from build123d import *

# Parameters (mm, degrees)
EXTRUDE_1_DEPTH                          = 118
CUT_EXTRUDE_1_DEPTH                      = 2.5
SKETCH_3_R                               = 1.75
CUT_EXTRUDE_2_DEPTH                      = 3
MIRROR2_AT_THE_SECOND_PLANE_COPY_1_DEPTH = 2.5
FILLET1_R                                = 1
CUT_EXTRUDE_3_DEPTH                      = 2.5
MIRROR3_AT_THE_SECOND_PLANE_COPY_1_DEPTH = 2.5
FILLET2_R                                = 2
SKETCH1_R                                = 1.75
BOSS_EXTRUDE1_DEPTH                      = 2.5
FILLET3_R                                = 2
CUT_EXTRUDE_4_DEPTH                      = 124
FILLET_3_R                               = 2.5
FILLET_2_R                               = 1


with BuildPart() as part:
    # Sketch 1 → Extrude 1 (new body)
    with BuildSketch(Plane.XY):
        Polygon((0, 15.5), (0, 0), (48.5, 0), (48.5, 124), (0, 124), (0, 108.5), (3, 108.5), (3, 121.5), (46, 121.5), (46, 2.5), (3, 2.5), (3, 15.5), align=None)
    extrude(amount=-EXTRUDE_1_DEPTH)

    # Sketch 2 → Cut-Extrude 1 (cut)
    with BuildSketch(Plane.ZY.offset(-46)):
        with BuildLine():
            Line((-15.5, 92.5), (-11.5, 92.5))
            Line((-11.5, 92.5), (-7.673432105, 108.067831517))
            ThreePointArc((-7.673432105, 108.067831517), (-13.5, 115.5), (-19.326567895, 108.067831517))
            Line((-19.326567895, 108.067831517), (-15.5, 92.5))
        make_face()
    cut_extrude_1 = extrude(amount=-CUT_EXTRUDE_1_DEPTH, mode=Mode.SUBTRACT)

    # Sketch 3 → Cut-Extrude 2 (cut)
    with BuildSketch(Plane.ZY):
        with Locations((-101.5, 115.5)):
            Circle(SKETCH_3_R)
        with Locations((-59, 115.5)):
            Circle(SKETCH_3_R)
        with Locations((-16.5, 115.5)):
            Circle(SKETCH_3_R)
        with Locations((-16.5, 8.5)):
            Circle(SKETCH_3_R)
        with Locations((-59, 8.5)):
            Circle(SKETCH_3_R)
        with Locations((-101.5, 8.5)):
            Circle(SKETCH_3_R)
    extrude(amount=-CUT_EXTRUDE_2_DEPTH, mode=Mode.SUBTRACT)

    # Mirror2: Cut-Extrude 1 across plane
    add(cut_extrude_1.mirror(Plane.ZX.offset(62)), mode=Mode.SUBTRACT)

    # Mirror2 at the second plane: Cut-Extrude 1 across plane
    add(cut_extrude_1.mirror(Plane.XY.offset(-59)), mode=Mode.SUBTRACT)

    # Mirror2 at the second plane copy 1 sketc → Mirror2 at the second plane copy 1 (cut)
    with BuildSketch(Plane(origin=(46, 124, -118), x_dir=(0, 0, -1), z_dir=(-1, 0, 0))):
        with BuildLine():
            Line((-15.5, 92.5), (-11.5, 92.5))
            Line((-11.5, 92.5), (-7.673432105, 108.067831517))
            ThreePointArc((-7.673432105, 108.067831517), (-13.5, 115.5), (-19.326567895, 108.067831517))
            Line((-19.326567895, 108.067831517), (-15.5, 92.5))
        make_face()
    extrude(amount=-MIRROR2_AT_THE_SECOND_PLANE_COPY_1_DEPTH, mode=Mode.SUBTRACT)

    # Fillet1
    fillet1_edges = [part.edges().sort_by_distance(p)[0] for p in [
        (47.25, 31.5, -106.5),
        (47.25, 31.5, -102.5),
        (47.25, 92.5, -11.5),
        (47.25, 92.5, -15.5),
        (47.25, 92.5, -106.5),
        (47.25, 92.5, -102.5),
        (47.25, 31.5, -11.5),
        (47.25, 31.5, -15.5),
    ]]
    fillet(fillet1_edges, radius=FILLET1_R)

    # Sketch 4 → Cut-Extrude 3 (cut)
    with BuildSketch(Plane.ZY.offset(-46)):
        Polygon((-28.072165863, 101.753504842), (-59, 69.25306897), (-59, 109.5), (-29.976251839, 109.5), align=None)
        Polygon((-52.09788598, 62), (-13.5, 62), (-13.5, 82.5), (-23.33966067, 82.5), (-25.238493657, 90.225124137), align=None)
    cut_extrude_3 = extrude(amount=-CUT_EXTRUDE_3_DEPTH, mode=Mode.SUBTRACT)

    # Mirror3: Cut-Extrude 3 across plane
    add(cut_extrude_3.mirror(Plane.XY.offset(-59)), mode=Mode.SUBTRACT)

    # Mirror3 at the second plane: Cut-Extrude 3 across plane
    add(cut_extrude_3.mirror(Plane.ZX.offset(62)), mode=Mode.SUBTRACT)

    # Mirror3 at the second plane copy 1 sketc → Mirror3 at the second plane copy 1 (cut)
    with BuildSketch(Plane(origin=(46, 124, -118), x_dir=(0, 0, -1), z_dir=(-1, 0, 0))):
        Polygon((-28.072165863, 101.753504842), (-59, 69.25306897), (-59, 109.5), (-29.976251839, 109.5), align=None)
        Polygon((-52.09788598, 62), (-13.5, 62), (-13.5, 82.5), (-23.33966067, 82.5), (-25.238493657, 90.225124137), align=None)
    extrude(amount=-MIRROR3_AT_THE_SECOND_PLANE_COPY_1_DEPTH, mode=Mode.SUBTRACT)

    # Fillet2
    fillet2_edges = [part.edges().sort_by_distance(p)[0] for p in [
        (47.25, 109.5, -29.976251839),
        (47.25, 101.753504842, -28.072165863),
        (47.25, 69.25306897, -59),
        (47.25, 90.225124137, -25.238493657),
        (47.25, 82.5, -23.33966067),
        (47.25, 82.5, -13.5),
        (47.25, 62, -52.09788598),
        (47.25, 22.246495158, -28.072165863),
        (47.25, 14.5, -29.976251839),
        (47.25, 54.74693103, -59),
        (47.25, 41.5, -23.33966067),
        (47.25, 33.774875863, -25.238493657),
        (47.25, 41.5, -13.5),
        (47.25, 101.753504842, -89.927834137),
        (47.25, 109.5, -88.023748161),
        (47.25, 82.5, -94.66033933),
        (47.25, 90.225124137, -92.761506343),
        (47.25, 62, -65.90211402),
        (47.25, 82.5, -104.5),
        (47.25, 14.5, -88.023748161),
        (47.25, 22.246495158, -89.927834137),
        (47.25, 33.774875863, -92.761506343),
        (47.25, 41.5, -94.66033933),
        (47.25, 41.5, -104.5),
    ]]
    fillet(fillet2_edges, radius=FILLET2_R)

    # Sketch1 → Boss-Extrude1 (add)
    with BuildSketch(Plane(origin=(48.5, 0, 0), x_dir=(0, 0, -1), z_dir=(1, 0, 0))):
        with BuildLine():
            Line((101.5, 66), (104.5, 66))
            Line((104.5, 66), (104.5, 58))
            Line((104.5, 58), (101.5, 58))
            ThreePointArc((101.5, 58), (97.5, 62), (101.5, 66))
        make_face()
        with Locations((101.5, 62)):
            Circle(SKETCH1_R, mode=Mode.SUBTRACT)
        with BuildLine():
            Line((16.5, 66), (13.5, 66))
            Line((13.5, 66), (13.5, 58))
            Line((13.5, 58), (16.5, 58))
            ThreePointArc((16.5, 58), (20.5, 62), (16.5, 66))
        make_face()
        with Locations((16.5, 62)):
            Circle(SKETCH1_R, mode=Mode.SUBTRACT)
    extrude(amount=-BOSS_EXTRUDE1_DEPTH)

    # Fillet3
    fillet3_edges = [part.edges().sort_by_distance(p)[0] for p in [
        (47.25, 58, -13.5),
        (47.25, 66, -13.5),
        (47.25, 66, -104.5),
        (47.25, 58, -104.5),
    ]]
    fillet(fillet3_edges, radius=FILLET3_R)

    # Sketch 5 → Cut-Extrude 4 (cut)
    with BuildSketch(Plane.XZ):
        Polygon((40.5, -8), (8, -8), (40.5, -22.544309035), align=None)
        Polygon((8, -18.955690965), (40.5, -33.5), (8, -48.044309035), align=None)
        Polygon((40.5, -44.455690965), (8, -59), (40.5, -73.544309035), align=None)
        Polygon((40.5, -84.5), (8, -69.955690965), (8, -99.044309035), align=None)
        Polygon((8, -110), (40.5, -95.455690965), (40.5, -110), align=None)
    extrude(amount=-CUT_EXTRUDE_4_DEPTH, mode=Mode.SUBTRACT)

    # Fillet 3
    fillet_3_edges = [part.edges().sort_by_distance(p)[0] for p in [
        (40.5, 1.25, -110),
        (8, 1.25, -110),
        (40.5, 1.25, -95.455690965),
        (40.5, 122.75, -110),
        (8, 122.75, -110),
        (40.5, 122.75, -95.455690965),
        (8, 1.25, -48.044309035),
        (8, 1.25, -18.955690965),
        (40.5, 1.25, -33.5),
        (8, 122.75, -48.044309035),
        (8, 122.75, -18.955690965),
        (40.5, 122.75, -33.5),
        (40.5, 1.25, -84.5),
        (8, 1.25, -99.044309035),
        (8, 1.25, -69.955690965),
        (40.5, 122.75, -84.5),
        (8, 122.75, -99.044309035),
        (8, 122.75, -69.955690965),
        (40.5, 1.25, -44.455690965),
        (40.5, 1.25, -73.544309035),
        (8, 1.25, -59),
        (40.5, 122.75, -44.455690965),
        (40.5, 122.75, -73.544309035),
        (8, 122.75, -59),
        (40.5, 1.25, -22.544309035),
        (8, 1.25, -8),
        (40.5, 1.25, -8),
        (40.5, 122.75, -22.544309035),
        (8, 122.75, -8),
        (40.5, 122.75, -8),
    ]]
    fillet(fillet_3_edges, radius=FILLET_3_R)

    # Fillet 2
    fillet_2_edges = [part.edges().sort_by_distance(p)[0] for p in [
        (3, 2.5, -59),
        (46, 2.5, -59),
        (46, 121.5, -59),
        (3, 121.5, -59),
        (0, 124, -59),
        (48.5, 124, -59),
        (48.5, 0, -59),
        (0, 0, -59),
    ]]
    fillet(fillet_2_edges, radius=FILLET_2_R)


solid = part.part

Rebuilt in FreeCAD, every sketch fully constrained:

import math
import FreeCAD as App
import Part
import Sketcher

V = App.Vector


def edges_at(feature, points):
    """Names of the edges that pass closest to the given points."""
    edges = feature.Shape.Edges
    near = lambda p: min(range(len(edges)), key=lambda i: edges[i].distToShape(Part.Vertex(*p))[0])
    return sorted({f"Edge{near(p) + 1}" for p in points})

doc = App.newDocument("Part")
body = doc.addObject("PartDesign::Body", "Body")

# Sketch on XY plane
sketch1 = body.newObject("Sketcher::SketchObject", "Sketch")
sketch1.AttachmentSupport = (doc.getObject("XY_Plane"), [""])
sketch1.MapMode = "FlatFace"
sketch1.addGeometry(Part.LineSegment(V(0, 15.5, 0), V(0, 0, 0)), False)
sketch1.addGeometry(Part.LineSegment(V(0, 0, 0), V(48.5, 0, 0)), False)
sketch1.addGeometry(Part.LineSegment(V(48.5, 0, 0), V(48.5, 124, 0)), False)
sketch1.addGeometry(Part.LineSegment(V(48.5, 124, 0), V(0, 124, 0)), False)
sketch1.addGeometry(Part.LineSegment(V(0, 124, 0), V(0, 108.5, 0)), False)
sketch1.addGeometry(Part.LineSegment(V(0, 108.5, 0), V(3, 108.5, 0)), False)
sketch1.addGeometry(Part.LineSegment(V(3, 108.5, 0), V(3, 121.5, 0)), False)
sketch1.addGeometry(Part.LineSegment(V(3, 121.5, 0), V(46, 121.5, 0)), False)
sketch1.addGeometry(Part.LineSegment(V(46, 121.5, 0), V(46, 2.5, 0)), False)
sketch1.addGeometry(Part.LineSegment(V(46, 2.5, 0), V(3, 2.5, 0)), False)
sketch1.addGeometry(Part.LineSegment(V(3, 2.5, 0), V(3, 15.5, 0)), False)
sketch1.addGeometry(Part.LineSegment(V(3, 15.5, 0), V(0, 15.5, 0)), False)
sketch1.addConstraint(Sketcher.Constraint("Coincident", 0, 2, 1, 1))
sketch1.addConstraint(Sketcher.Constraint("Coincident", 1, 2, 2, 1))
sketch1.addConstraint(Sketcher.Constraint("Coincident", 2, 2, 3, 1))
sketch1.addConstraint(Sketcher.Constraint("Coincident", 3, 2, 4, 1))
sketch1.addConstraint(Sketcher.Constraint("Coincident", 4, 2, 5, 1))
sketch1.addConstraint(Sketcher.Constraint("Coincident", 5, 2, 6, 1))
sketch1.addConstraint(Sketcher.Constraint("Coincident", 6, 2, 7, 1))
sketch1.addConstraint(Sketcher.Constraint("Coincident", 7, 2, 8, 1))
sketch1.addConstraint(Sketcher.Constraint("Coincident", 8, 2, 9, 1))
sketch1.addConstraint(Sketcher.Constraint("Coincident", 9, 2, 10, 1))
sketch1.addConstraint(Sketcher.Constraint("Coincident", 10, 2, 11, 1))
sketch1.addConstraint(Sketcher.Constraint("Coincident", 11, 2, 0, 1))
sketch1.addConstraint(Sketcher.Constraint("Vertical", 0))
sketch1.addConstraint(Sketcher.Constraint("Horizontal", 1))
sketch1.addConstraint(Sketcher.Constraint("Vertical", 2))
sketch1.addConstraint(Sketcher.Constraint("Horizontal", 3))
sketch1.addConstraint(Sketcher.Constraint("Vertical", 4))
sketch1.addConstraint(Sketcher.Constraint("Horizontal", 5))
sketch1.addConstraint(Sketcher.Constraint("Vertical", 6))
sketch1.addConstraint(Sketcher.Constraint("Horizontal", 7))
sketch1.addConstraint(Sketcher.Constraint("Vertical", 8))
sketch1.addConstraint(Sketcher.Constraint("Horizontal", 9))
sketch1.addConstraint(Sketcher.Constraint("Vertical", 10))
sketch1.addConstraint(Sketcher.Constraint("Horizontal", 11))
sketch1.addConstraint(Sketcher.Constraint("Coincident", 0, 2, -1, 1))
sketch1.addConstraint(Sketcher.Constraint("PointOnObject", 3, 2, -2))
sketch1.addConstraint(Sketcher.Constraint("Vertical", 6, 2, 9, 2))
sketch1.addConstraint(Sketcher.Constraint("Equal", 0, 4))
sketch1.addConstraint(Sketcher.Constraint("Equal", 6, 10))
sketch1.addConstraint(Sketcher.Constraint("DistanceX", 5, 1, 5, 2, 3.0))
sketch1.addConstraint(Sketcher.Constraint("DistanceX", 7, 1, 7, 2, 43.0))
sketch1.addConstraint(Sketcher.Constraint("DistanceY", 2, 1, 2, 2, 124.0))
sketch1.addConstraint(Sketcher.Constraint("DistanceY", 6, 1, 6, 2, 13.0))
sketch1.addConstraint(Sketcher.Constraint("DistanceY", 8, 2, 8, 1, 119.0))
sketch1.addConstraint(Sketcher.Constraint("DistanceX", 1, 1, 1, 2, 48.5))
pad1 = body.newObject("PartDesign::Pad", "Pad")
pad1.Profile = sketch1
pad1.Length = 118
pad1.Reversed = True

# Sketch on YZ plane
sketch2 = body.newObject("Sketcher::SketchObject", "Sketch001")
sketch2.AttachmentSupport = (doc.getObject("YZ_Plane"), [""])
sketch2.MapMode = "FlatFace"
sketch2.AttachmentOffset = App.Placement(V(0, 0, 46), App.Rotation())
sketch2.addGeometry(Part.LineSegment(V(92.5, -15.5, 0), V(92.5, -11.5, 0)), False)
sketch2.addGeometry(Part.LineSegment(V(92.5, -11.5, 0), V(108.1, -7.7, 0)), False)
sketch2.addGeometry(Part.ArcOfCircle(Part.Circle(V(109.5, -13.5, 0), V(0, 0, 1), 6), math.radians(-104), math.radians(104)), False)
sketch2.addGeometry(Part.LineSegment(V(108.1, -19.3, 0), V(92.5, -15.5, 0)), False)
sketch2.addConstraint(Sketcher.Constraint("Coincident", 0, 2, 1, 1))
sketch2.addConstraint(Sketcher.Constraint("Tangent", 1, 2, 2, 2))
sketch2.addConstraint(Sketcher.Constraint("Tangent", 2, 1, 3, 1))
sketch2.addConstraint(Sketcher.Constraint("Coincident", 3, 2, 0, 1))
sketch2.addConstraint(Sketcher.Constraint("Vertical", 0))
sketch2.addConstraint(Sketcher.Constraint("Vertical", 1, 2, 2, 1))
sketch2.addConstraint(Sketcher.Constraint("Radius", 2, 6.0))
sketch2.addConstraint(Sketcher.Constraint("DistanceY", 0, 1, 0, 2, 4.0))
sketch2.addConstraint(Sketcher.Constraint("DistanceX", 0, 2, 2, 3, 17.0))
sketch2.addConstraint(Sketcher.Constraint("DistanceX", -1, 1, 2, 3, 109.5))
sketch2.addConstraint(Sketcher.Constraint("DistanceY", 2, 3, -1, 1, 13.5))
pocket1 = body.newObject("PartDesign::Pocket", "Pocket")
pocket1.Profile = sketch2
pocket1.Length = 2.5
pocket1.Reversed = True

# Sketch on YZ plane
sketch3 = body.newObject("Sketcher::SketchObject", "Sketch002")
sketch3.AttachmentSupport = (doc.getObject("YZ_Plane"), [""])
sketch3.MapMode = "FlatFace"
sketch3.addGeometry(Part.Circle(V(115.5, -101.5, 0), V(0, 0, 1), 1.8), False)
sketch3.addGeometry(Part.Circle(V(115.5, -59, 0), V(0, 0, 1), 1.8), False)
sketch3.addGeometry(Part.Circle(V(115.5, -16.5, 0), V(0, 0, 1), 1.8), False)
sketch3.addGeometry(Part.Circle(V(8.5, -16.5, 0), V(0, 0, 1), 1.8), False)
sketch3.addGeometry(Part.Circle(V(8.5, -59, 0), V(0, 0, 1), 1.8), False)
sketch3.addGeometry(Part.Circle(V(8.5, -101.5, 0), V(0, 0, 1), 1.8), False)
sketch3.addConstraint(Sketcher.Constraint("Equal", 0, 1))
sketch3.addConstraint(Sketcher.Constraint("Equal", 1, 2))
sketch3.addConstraint(Sketcher.Constraint("Equal", 2, 3))
sketch3.addConstraint(Sketcher.Constraint("Equal", 3, 4))
sketch3.addConstraint(Sketcher.Constraint("Equal", 4, 5))
sketch3.addConstraint(Sketcher.Constraint("Horizontal", 2, 3, 3, 3))
sketch3.addConstraint(Sketcher.Constraint("Horizontal", 1, 3, 4, 3))
sketch3.addConstraint(Sketcher.Constraint("Horizontal", 0, 3, 5, 3))
sketch3.addConstraint(Sketcher.Constraint("Vertical", 0, 3, 1, 3))
sketch3.addConstraint(Sketcher.Constraint("Vertical", 1, 3, 2, 3))
sketch3.addConstraint(Sketcher.Constraint("Vertical", 3, 3, 4, 3))
sketch3.addConstraint(Sketcher.Constraint("Vertical", 4, 3, 5, 3))
sketch3.addConstraint(Sketcher.Constraint("Diameter", 0, 3.5))
sketch3.addConstraint(Sketcher.Constraint("DistanceY", 1, 3, -1, 1, 59.0))
sketch3.addConstraint(Sketcher.Constraint("DistanceY", 0, 3, 2, 3, 85.0))
sketch3.addConstraint(Sketcher.Constraint("DistanceX", 3, 3, 2, 3, 107.0))
sketch3.addConstraint(Sketcher.Constraint("DistanceX", -1, 1, 0, 3, 115.5))
sketch3.addConstraint(Sketcher.Constraint("DistanceY", 0, 3, -1, 1, 101.5))
pocket2 = body.newObject("PartDesign::Pocket", "Pocket001")
pocket2.Profile = sketch3
pocket2.Length = 3
pocket2.Reversed = True
doc.recompute()

datumplane = body.newObject("PartDesign::Plane", "DatumPlane")
datumplane.AttachmentSupport = (doc.getObject("XZ_Plane"), [""])
datumplane.MapMode = "FlatFace"
datumplane.AttachmentOffset = App.Placement(V(0, 0, -62), App.Rotation())
mirrored = body.newObject("PartDesign::Mirrored", "Mirrored")
mirrored.Originals = [pocket1]
mirrored.MirrorPlane = (datumplane, [""])
body.Tip = mirrored
doc.recompute()

datumplane2 = body.newObject("PartDesign::Plane", "DatumPlane001")
datumplane2.AttachmentSupport = (doc.getObject("XY_Plane"), [""])
datumplane2.MapMode = "FlatFace"
datumplane2.AttachmentOffset = App.Placement(V(0, 0, -59), App.Rotation())
mirrored2 = body.newObject("PartDesign::Mirrored", "Mirrored001")
mirrored2.Originals = [pocket1]
mirrored2.MirrorPlane = (datumplane2, [""])
body.Tip = mirrored2

# Sketch on YZ plane
sketch4 = body.newObject("Sketcher::SketchObject", "Sketch003")
sketch4.AttachmentSupport = (doc.getObject("YZ_Plane"), [""])
sketch4.MapMode = "FlatFace"
sketch4.AttachmentOffset = App.Placement(V(0, 0, 46), App.Rotation())
sketch4.addGeometry(Part.LineSegment(V(31.5, -102.5, 0), V(31.5, -106.5, 0)), False)
sketch4.addGeometry(Part.LineSegment(V(31.5, -106.5, 0), V(15.9, -110.3, 0)), False)
sketch4.addGeometry(Part.ArcOfCircle(Part.Circle(V(14.5, -104.5, 0), V(0, 0, 1), 6), math.radians(76), math.radians(284)), False)
sketch4.addGeometry(Part.LineSegment(V(15.9, -98.7, 0), V(31.5, -102.5, 0)), False)
sketch4.addConstraint(Sketcher.Constraint("Coincident", 0, 2, 1, 1))
sketch4.addConstraint(Sketcher.Constraint("Tangent", 1, 2, 2, 2))
sketch4.addConstraint(Sketcher.Constraint("Tangent", 2, 1, 3, 1))
sketch4.addConstraint(Sketcher.Constraint("Coincident", 3, 2, 0, 1))
sketch4.addConstraint(Sketcher.Constraint("Vertical", 0))
sketch4.addConstraint(Sketcher.Constraint("Vertical", 1, 2, 2, 1))
sketch4.addConstraint(Sketcher.Constraint("Radius", 2, 6.0))
sketch4.addConstraint(Sketcher.Constraint("DistanceY", 0, 2, 0, 1, 4.0))
sketch4.addConstraint(Sketcher.Constraint("DistanceX", 2, 3, 0, 2, 17.0))
sketch4.addConstraint(Sketcher.Constraint("DistanceX", -1, 1, 2, 3, 14.5))
sketch4.addConstraint(Sketcher.Constraint("DistanceY", 2, 3, -1, 1, 104.5))
pocket3 = body.newObject("PartDesign::Pocket", "Pocket002")
pocket3.Profile = sketch4
pocket3.Length = 2.5
pocket3.Reversed = True
doc.recompute()

fillet = body.newObject("PartDesign::Fillet", "Fillet")
fillet.Base = (pocket3, edges_at(pocket3, [
    (47.25, 31.5, -106.5),
    (47.25, 31.5, -102.5),
    (47.25, 92.5, -11.5),
    (47.25, 92.5, -15.5),
    (47.25, 92.5, -106.5),
    (47.25, 92.5, -102.5),
    (47.25, 31.5, -11.5),
    (47.25, 31.5, -15.5),
]))
fillet.Radius = 1

# Sketch on YZ plane
sketch5 = body.newObject("Sketcher::SketchObject", "Sketch004")
sketch5.AttachmentSupport = (doc.getObject("YZ_Plane"), [""])
sketch5.MapMode = "FlatFace"
sketch5.AttachmentOffset = App.Placement(V(0, 0, 46), App.Rotation())
sketch5.addGeometry(Part.LineSegment(V(69, -59, 0), V(102, -28, 0)), False)
sketch5.addGeometry(Part.LineSegment(V(102, -28, 0), V(110, -30, 0)), False)
sketch5.addGeometry(Part.LineSegment(V(110, -30, 0), V(110, -59, 0)), False)
sketch5.addGeometry(Part.LineSegment(V(110, -59, 0), V(69, -59, 0)), False)
sketch5.addGeometry(Part.LineSegment(V(62, -52, 0), V(62, -14, 0)), False)
sketch5.addGeometry(Part.LineSegment(V(62, -14, 0), V(82, -14, 0)), False)
sketch5.addGeometry(Part.LineSegment(V(82, -14, 0), V(82, -23, 0)), False)
sketch5.addGeometry(Part.LineSegment(V(82, -23, 0), V(90, -25, 0)), False)
sketch5.addGeometry(Part.LineSegment(V(90, -25, 0), V(62, -52, 0)), False)
sketch5.addConstraint(Sketcher.Constraint("Coincident", 0, 2, 1, 1))
sketch5.addConstraint(Sketcher.Constraint("Coincident", 1, 2, 2, 1))
sketch5.addConstraint(Sketcher.Constraint("Coincident", 2, 2, 3, 1))
sketch5.addConstraint(Sketcher.Constraint("Coincident", 3, 2, 0, 1))
sketch5.addConstraint(Sketcher.Constraint("Coincident", 4, 2, 5, 1))
sketch5.addConstraint(Sketcher.Constraint("Coincident", 5, 2, 6, 1))
sketch5.addConstraint(Sketcher.Constraint("Coincident", 6, 2, 7, 1))
sketch5.addConstraint(Sketcher.Constraint("Coincident", 7, 2, 8, 1))
sketch5.addConstraint(Sketcher.Constraint("Coincident", 8, 2, 4, 1))
sketch5.addConstraint(Sketcher.Constraint("Vertical", 2))
sketch5.addConstraint(Sketcher.Constraint("Horizontal", 3))
sketch5.addConstraint(Sketcher.Constraint("Vertical", 4))
sketch5.addConstraint(Sketcher.Constraint("Horizontal", 5))
sketch5.addConstraint(Sketcher.Constraint("Vertical", 6))
sketch5.addConstraint(Sketcher.Constraint("Parallel", 1, 7))
sketch5.addConstraint(Sketcher.Constraint("Parallel", 0, 8))
sketch5.addConstraint(Sketcher.Constraint("DistanceX", 5, 1, 5, 2, 20.5))
sketch5.addConstraint(Sketcher.Constraint("DistanceY", 2, 2, -1, 1, 59.0))
sketch5.addConstraint(Sketcher.Constraint("DistanceX", -1, 1, 4, 2, 62.0))
sketch5.addConstraint(Sketcher.Constraint("DistanceX", 5, 2, 1, 2, 27.0))
sketch5.addConstraint(Sketcher.Constraint("DistanceY", 4, 2, -1, 1, 13.5))
sketch5.addConstraint(Sketcher.Constraint("DistanceX", 3, 2, 3, 1, 40.246931))
sketch5.addConstraint(Sketcher.Constraint("DistanceY", 2, 2, 2, 1, 29.023748))
sketch5.addConstraint(Sketcher.Constraint("DistanceY", 6, 2, 6, 1, 9.839661))
sketch5.addConstraint(Sketcher.Constraint("Distance", 7, 7.955068))
sketch5.addConstraint(Sketcher.Constraint("DistanceY", 4, 1, 4, 2, 38.597886))
sketch5.addConstraint(Sketcher.Constraint("DistanceX", 7, 2, 0, 2, 11.528381))
pocket4 = body.newObject("PartDesign::Pocket", "Pocket003")
pocket4.Profile = sketch5
pocket4.Length = 2.5
pocket4.Reversed = True
doc.recompute()

datumplane3 = body.newObject("PartDesign::Plane", "DatumPlane002")
datumplane3.AttachmentSupport = (doc.getObject("XY_Plane"), [""])
datumplane3.MapMode = "FlatFace"
datumplane3.AttachmentOffset = App.Placement(V(0, 0, -59), App.Rotation())
mirrored3 = body.newObject("PartDesign::Mirrored", "Mirrored002")
mirrored3.Originals = [pocket4]
mirrored3.MirrorPlane = (datumplane3, [""])
body.Tip = mirrored3
doc.recompute()

datumplane4 = body.newObject("PartDesign::Plane", "DatumPlane003")
datumplane4.AttachmentSupport = (doc.getObject("XZ_Plane"), [""])
datumplane4.MapMode = "FlatFace"
datumplane4.AttachmentOffset = App.Placement(V(0, 0, -62), App.Rotation())
mirrored4 = body.newObject("PartDesign::Mirrored", "Mirrored003")
mirrored4.Originals = [pocket4]
mirrored4.MirrorPlane = (datumplane4, [""])
body.Tip = mirrored4

# Sketch on YZ plane
sketch6 = body.newObject("Sketcher::SketchObject", "Sketch005")
sketch6.AttachmentSupport = (doc.getObject("YZ_Plane"), [""])
sketch6.MapMode = "FlatFace"
sketch6.AttachmentOffset = App.Placement(V(0, 0, 46), App.Rotation())
sketch6.addGeometry(Part.LineSegment(V(55, -59, 0), V(22, -90, 0)), False)
sketch6.addGeometry(Part.LineSegment(V(22, -90, 0), V(14, -88, 0)), False)
sketch6.addGeometry(Part.LineSegment(V(14, -88, 0), V(14, -59, 0)), False)
sketch6.addGeometry(Part.LineSegment(V(14, -59, 0), V(55, -59, 0)), False)
sketch6.addGeometry(Part.LineSegment(V(62, -66, 0), V(62, -104, 0)), False)
sketch6.addGeometry(Part.LineSegment(V(62, -104, 0), V(42, -104, 0)), False)
sketch6.addGeometry(Part.LineSegment(V(42, -104, 0), V(42, -95, 0)), False)
sketch6.addGeometry(Part.LineSegment(V(42, -95, 0), V(34, -93, 0)), False)
sketch6.addGeometry(Part.LineSegment(V(34, -93, 0), V(62, -66, 0)), False)
sketch6.addConstraint(Sketcher.Constraint("Coincident", 0, 2, 1, 1))
sketch6.addConstraint(Sketcher.Constraint("Coincident", 1, 2, 2, 1))
sketch6.addConstraint(Sketcher.Constraint("Coincident", 2, 2, 3, 1))
sketch6.addConstraint(Sketcher.Constraint("Coincident", 3, 2, 0, 1))
sketch6.addConstraint(Sketcher.Constraint("Coincident", 4, 2, 5, 1))
sketch6.addConstraint(Sketcher.Constraint("Coincident", 5, 2, 6, 1))
sketch6.addConstraint(Sketcher.Constraint("Coincident", 6, 2, 7, 1))
sketch6.addConstraint(Sketcher.Constraint("Coincident", 7, 2, 8, 1))
sketch6.addConstraint(Sketcher.Constraint("Coincident", 8, 2, 4, 1))
sketch6.addConstraint(Sketcher.Constraint("Vertical", 2))
sketch6.addConstraint(Sketcher.Constraint("Horizontal", 3))
sketch6.addConstraint(Sketcher.Constraint("Vertical", 4))
sketch6.addConstraint(Sketcher.Constraint("Horizontal", 5))
sketch6.addConstraint(Sketcher.Constraint("Vertical", 6))
sketch6.addConstraint(Sketcher.Constraint("Parallel", 1, 7))
sketch6.addConstraint(Sketcher.Constraint("Parallel", 0, 8))
sketch6.addConstraint(Sketcher.Constraint("DistanceX", 5, 2, 5, 1, 20.5))
sketch6.addConstraint(Sketcher.Constraint("DistanceY", 2, 2, -1, 1, 59.0))
sketch6.addConstraint(Sketcher.Constraint("DistanceX", -1, 1, 4, 2, 62.0))
sketch6.addConstraint(Sketcher.Constraint("DistanceX", 1, 2, 5, 2, 27.0))
sketch6.addConstraint(Sketcher.Constraint("DistanceY", 4, 2, -1, 1, 104.5))
sketch6.addConstraint(Sketcher.Constraint("DistanceX", 3, 1, 3, 2, 40.246931))
sketch6.addConstraint(Sketcher.Constraint("DistanceY", 2, 1, 2, 2, 29.023748))
sketch6.addConstraint(Sketcher.Constraint("DistanceY", 6, 1, 6, 2, 9.839661))
sketch6.addConstraint(Sketcher.Constraint("Distance", 7, 7.955068))
sketch6.addConstraint(Sketcher.Constraint("DistanceY", 4, 2, 4, 1, 38.597886))
sketch6.addConstraint(Sketcher.Constraint("DistanceX", 0, 2, 7, 2, 11.528381))
pocket5 = body.newObject("PartDesign::Pocket", "Pocket004")
pocket5.Profile = sketch6
pocket5.Length = 2.5
pocket5.Reversed = True
doc.recompute()

fillet2 = body.newObject("PartDesign::Fillet", "Fillet001")
fillet2.Base = (pocket5, edges_at(pocket5, [
    (47.25, 109.5, -29.976),
    (47.25, 101.754, -28.072),
    (47.25, 69.253, -59),
    (47.25, 90.225, -25.238),
    (47.25, 82.5, -23.34),
    (47.25, 82.5, -13.5),
    (47.25, 62, -52.098),
    (47.25, 22.246, -28.072),
    (47.25, 14.5, -29.976),
    (47.25, 54.747, -59),
    (47.25, 41.5, -23.34),
    (47.25, 33.775, -25.238),
    (47.25, 41.5, -13.5),
    (47.25, 101.754, -89.928),
    (47.25, 109.5, -88.024),
    (47.25, 82.5, -94.66),
    (47.25, 90.225, -92.762),
    (47.25, 62, -65.902),
    (47.25, 82.5, -104.5),
    (47.25, 14.5, -88.024),
    (47.25, 22.246, -89.928),
    (47.25, 33.775, -92.762),
    (47.25, 41.5, -94.66),
    (47.25, 41.5, -104.5),
]))
fillet2.Radius = 2

# Sketch on YZ plane
sketch7 = body.newObject("Sketcher::SketchObject", "Sketch006")
sketch7.AttachmentSupport = (doc.getObject("YZ_Plane"), [""])
sketch7.MapMode = "FlatFace"
sketch7.AttachmentOffset = App.Placement(V(0, 0, 48.5), App.Rotation())
sketch7.addGeometry(Part.LineSegment(V(66, -104.5, 0), V(66, -101.5, 0)), False)
sketch7.addGeometry(Part.ArcOfCircle(Part.Circle(V(62, -101.5, 0), V(0, 0, 1), 4), math.radians(0), math.radians(180)), False)
sketch7.addGeometry(Part.LineSegment(V(58, -101.5, 0), V(58, -104.5, 0)), False)
sketch7.addGeometry(Part.LineSegment(V(58, -104.5, 0), V(66, -104.5, 0)), False)
sketch7.addGeometry(Part.Circle(V(62, -101.5, 0), V(0, 0, 1), 1.8), False)
sketch7.addGeometry(Part.LineSegment(V(66, -16.5, 0), V(66, -13.5, 0)), False)
sketch7.addGeometry(Part.LineSegment(V(66, -13.5, 0), V(58, -13.5, 0)), False)
sketch7.addGeometry(Part.LineSegment(V(58, -13.5, 0), V(58, -16.5, 0)), False)
sketch7.addGeometry(Part.ArcOfCircle(Part.Circle(V(62, -16.5, 0), V(0, 0, 1), 4), math.radians(180), math.radians(360)), False)
sketch7.addGeometry(Part.Circle(V(62, -16.5, 0), V(0, 0, 1), 1.8), False)
sketch7.addConstraint(Sketcher.Constraint("Tangent", 0, 2, 1, 1))
sketch7.addConstraint(Sketcher.Constraint("Tangent", 1, 2, 2, 1))
sketch7.addConstraint(Sketcher.Constraint("Coincident", 2, 2, 3, 1))
sketch7.addConstraint(Sketcher.Constraint("Coincident", 3, 2, 0, 1))
sketch7.addConstraint(Sketcher.Constraint("Coincident", 5, 2, 6, 1))
sketch7.addConstraint(Sketcher.Constraint("Coincident", 6, 2, 7, 1))
sketch7.addConstraint(Sketcher.Constraint("Tangent", 7, 2, 8, 1))
sketch7.addConstraint(Sketcher.Constraint("Tangent", 8, 2, 5, 1))
sketch7.addConstraint(Sketcher.Constraint("Vertical", 0))
sketch7.addConstraint(Sketcher.Constraint("Vertical", 2))
sketch7.addConstraint(Sketcher.Constraint("Horizontal", 3))
sketch7.addConstraint(Sketcher.Constraint("Vertical", 5))
sketch7.addConstraint(Sketcher.Constraint("Horizontal", 6))
sketch7.addConstraint(Sketcher.Constraint("Vertical", 7))
sketch7.addConstraint(Sketcher.Constraint("Coincident", 4, 3, 1, 3))
sketch7.addConstraint(Sketcher.Constraint("Coincident", 9, 3, 8, 3))
sketch7.addConstraint(Sketcher.Constraint("Equal", 1, 8))
sketch7.addConstraint(Sketcher.Constraint("Equal", 4, 9))
sketch7.addConstraint(Sketcher.Constraint("Vertical", 4, 3, 8, 3))
sketch7.addConstraint(Sketcher.Constraint("Equal", 2, 5))
sketch7.addConstraint(Sketcher.Constraint("Radius", 1, 4.0))
sketch7.addConstraint(Sketcher.Constraint("Diameter", 4, 3.5))
sketch7.addConstraint(Sketcher.Constraint("DistanceY", 0, 1, 0, 2, 3.0))
sketch7.addConstraint(Sketcher.Constraint("DistanceX", -1, 1, 1, 3, 62.0))
sketch7.addConstraint(Sketcher.Constraint("DistanceY", 1, 3, 8, 3, 85.0))
sketch7.addConstraint(Sketcher.Constraint("DistanceY", 1, 3, -1, 1, 101.5))
pad2 = body.newObject("PartDesign::Pad", "Pad001")
pad2.Profile = sketch7
pad2.Length = 2.5
pad2.Reversed = True
doc.recompute()

fillet3 = body.newObject("PartDesign::Fillet", "Fillet002")
fillet3.Base = (pad2, edges_at(pad2, [
    (47.25, 58, -13.5),
    (47.25, 66, -13.5),
    (47.25, 66, -104.5),
    (47.25, 58, -104.5),
]))
fillet3.Radius = 2

# Sketch on XZ plane
sketch8 = body.newObject("Sketcher::SketchObject", "Sketch007")
sketch8.AttachmentSupport = (doc.getObject("XZ_Plane"), [""])
sketch8.MapMode = "FlatFace"
sketch8.addGeometry(Part.LineSegment(V(40, -8, 0), V(8, -8, 0)), False)
sketch8.addGeometry(Part.LineSegment(V(8, -8, 0), V(40, -23, 0)), False)
sketch8.addGeometry(Part.LineSegment(V(40, -23, 0), V(40, -8, 0)), False)
sketch8.addGeometry(Part.LineSegment(V(40, -34, 0), V(8, -19, 0)), False)
sketch8.addGeometry(Part.LineSegment(V(8, -19, 0), V(8, -48, 0)), False)
sketch8.addGeometry(Part.LineSegment(V(8, -48, 0), V(40, -34, 0)), False)
sketch8.addGeometry(Part.LineSegment(V(40, -44, 0), V(8, -59, 0)), False)
sketch8.addGeometry(Part.LineSegment(V(8, -59, 0), V(40, -74, 0)), False)
sketch8.addGeometry(Part.LineSegment(V(40, -74, 0), V(40, -44, 0)), False)
sketch8.addGeometry(Part.LineSegment(V(40, -84, 0), V(8, -70, 0)), False)
sketch8.addGeometry(Part.LineSegment(V(8, -70, 0), V(8, -99, 0)), False)
sketch8.addGeometry(Part.LineSegment(V(8, -99, 0), V(40, -84, 0)), False)
sketch8.addGeometry(Part.LineSegment(V(40, -95, 0), V(8, -110, 0)), False)
sketch8.addGeometry(Part.LineSegment(V(8, -110, 0), V(40, -110, 0)), False)
sketch8.addGeometry(Part.LineSegment(V(40, -110, 0), V(40, -95, 0)), False)
sketch8.addConstraint(Sketcher.Constraint("Coincident", 0, 2, 1, 1))
sketch8.addConstraint(Sketcher.Constraint("Coincident", 1, 2, 2, 1))
sketch8.addConstraint(Sketcher.Constraint("Coincident", 2, 2, 0, 1))
sketch8.addConstraint(Sketcher.Constraint("Coincident", 3, 2, 4, 1))
sketch8.addConstraint(Sketcher.Constraint("Coincident", 4, 2, 5, 1))
sketch8.addConstraint(Sketcher.Constraint("Coincident", 5, 2, 3, 1))
sketch8.addConstraint(Sketcher.Constraint("Coincident", 6, 2, 7, 1))
sketch8.addConstraint(Sketcher.Constraint("Coincident", 7, 2, 8, 1))
sketch8.addConstraint(Sketcher.Constraint("Coincident", 8, 2, 6, 1))
sketch8.addConstraint(Sketcher.Constraint("Coincident", 9, 2, 10, 1))
sketch8.addConstraint(Sketcher.Constraint("Coincident", 10, 2, 11, 1))
sketch8.addConstraint(Sketcher.Constraint("Coincident", 11, 2, 9, 1))
sketch8.addConstraint(Sketcher.Constraint("Coincident", 12, 2, 13, 1))
sketch8.addConstraint(Sketcher.Constraint("Coincident", 13, 2, 14, 1))
sketch8.addConstraint(Sketcher.Constraint("Coincident", 14, 2, 12, 1))
sketch8.addConstraint(Sketcher.Constraint("Horizontal", 0))
sketch8.addConstraint(Sketcher.Constraint("Vertical", 2))
sketch8.addConstraint(Sketcher.Constraint("Vertical", 4))
sketch8.addConstraint(Sketcher.Constraint("Vertical", 8))
sketch8.addConstraint(Sketcher.Constraint("Vertical", 10))
sketch8.addConstraint(Sketcher.Constraint("Horizontal", 13))
sketch8.addConstraint(Sketcher.Constraint("Vertical", 14))
sketch8.addConstraint(Sketcher.Constraint("Parallel", 1, 3))
sketch8.addConstraint(Sketcher.Constraint("Parallel", 5, 6))
sketch8.addConstraint(Sketcher.Constraint("Parallel", 3, 7))
sketch8.addConstraint(Sketcher.Constraint("Parallel", 7, 9))
sketch8.addConstraint(Sketcher.Constraint("Parallel", 6, 11))
sketch8.addConstraint(Sketcher.Constraint("Parallel", 11, 12))
sketch8.addConstraint(Sketcher.Constraint("Vertical", 0, 2, 3, 2))
sketch8.addConstraint(Sketcher.Constraint("Vertical", 2, 2, 5, 2))
sketch8.addConstraint(Sketcher.Constraint("Vertical", 4, 2, 6, 2))
sketch8.addConstraint(Sketcher.Constraint("Vertical", 5, 2, 7, 2))
sketch8.addConstraint(Sketcher.Constraint("Vertical", 6, 2, 9, 2))
sketch8.addConstraint(Sketcher.Constraint("Vertical", 8, 2, 11, 2))
sketch8.addConstraint(Sketcher.Constraint("Vertical", 10, 2, 12, 2))
sketch8.addConstraint(Sketcher.Constraint("Vertical", 11, 2, 13, 2))
sketch8.addConstraint(Sketcher.Constraint("Equal", 2, 14))
sketch8.addConstraint(Sketcher.Constraint("DistanceX", 0, 2, 0, 1, 32.5))
sketch8.addConstraint(Sketcher.Constraint("DistanceX", -1, 1, 0, 2, 8.0))
sketch8.addConstraint(Sketcher.Constraint("DistanceY", 0, 2, -1, 1, 8.0))
sketch8.addConstraint(Sketcher.Constraint("DistanceY", 6, 2, -1, 1, 59.0))
sketch8.addConstraint(Sketcher.Constraint("DistanceY", 12, 2, -1, 1, 110.0))
sketch8.addConstraint(Sketcher.Constraint("DistanceY", 10, 2, 4, 2, 51.0))
sketch8.addConstraint(Sketcher.Constraint("DistanceY", 5, 2, -1, 1, 33.5))
sketch8.addConstraint(Sketcher.Constraint("DistanceY", 2, 1, 2, 2, 14.544309))
pocket6 = body.newObject("PartDesign::Pocket", "Pocket005")
pocket6.Profile = sketch8
pocket6.Length = 124
doc.recompute()

fillet4 = body.newObject("PartDesign::Fillet", "Fillet003")
fillet4.Base = (pocket6, edges_at(pocket6, [
    (40.5, 1.25, -110),
    (8, 1.25, -110),
    (40.5, 1.25, -95.456),
    (40.5, 122.75, -110),
    (8, 122.75, -110),
    (40.5, 122.75, -95.456),
    (8, 1.25, -48.044),
    (8, 1.25, -18.956),
    (40.5, 1.25, -33.5),
    (8, 122.75, -48.044),
    (8, 122.75, -18.956),
    (40.5, 122.75, -33.5),
    (40.5, 1.25, -84.5),
    (8, 1.25, -99.044),
    (8, 1.25, -69.956),
    (40.5, 122.75, -84.5),
    (8, 122.75, -99.044),
    (8, 122.75, -69.956),
    (40.5, 1.25, -44.456),
    (40.5, 1.25, -73.544),
    (8, 1.25, -59),
    (40.5, 122.75, -44.456),
    (40.5, 122.75, -73.544),
    (8, 122.75, -59),
    (40.5, 1.25, -22.544),
    (8, 1.25, -8),
    (40.5, 1.25, -8),
    (40.5, 122.75, -22.544),
    (8, 122.75, -8),
    (40.5, 122.75, -8),
]))
fillet4.Radius = 2.5
doc.recompute()

fillet5 = body.newObject("PartDesign::Fillet", "Fillet004")
fillet5.Base = (fillet4, edges_at(fillet4, [
    (3, 2.5, -59),
    (46, 2.5, -59),
    (46, 121.5, -59),
    (3, 121.5, -59),
    (0, 124, -59),
    (48.5, 124, -59),
    (48.5, 0, -59),
    (0, 0, -59),
]))
fillet5.Radius = 1

doc.recompute()
